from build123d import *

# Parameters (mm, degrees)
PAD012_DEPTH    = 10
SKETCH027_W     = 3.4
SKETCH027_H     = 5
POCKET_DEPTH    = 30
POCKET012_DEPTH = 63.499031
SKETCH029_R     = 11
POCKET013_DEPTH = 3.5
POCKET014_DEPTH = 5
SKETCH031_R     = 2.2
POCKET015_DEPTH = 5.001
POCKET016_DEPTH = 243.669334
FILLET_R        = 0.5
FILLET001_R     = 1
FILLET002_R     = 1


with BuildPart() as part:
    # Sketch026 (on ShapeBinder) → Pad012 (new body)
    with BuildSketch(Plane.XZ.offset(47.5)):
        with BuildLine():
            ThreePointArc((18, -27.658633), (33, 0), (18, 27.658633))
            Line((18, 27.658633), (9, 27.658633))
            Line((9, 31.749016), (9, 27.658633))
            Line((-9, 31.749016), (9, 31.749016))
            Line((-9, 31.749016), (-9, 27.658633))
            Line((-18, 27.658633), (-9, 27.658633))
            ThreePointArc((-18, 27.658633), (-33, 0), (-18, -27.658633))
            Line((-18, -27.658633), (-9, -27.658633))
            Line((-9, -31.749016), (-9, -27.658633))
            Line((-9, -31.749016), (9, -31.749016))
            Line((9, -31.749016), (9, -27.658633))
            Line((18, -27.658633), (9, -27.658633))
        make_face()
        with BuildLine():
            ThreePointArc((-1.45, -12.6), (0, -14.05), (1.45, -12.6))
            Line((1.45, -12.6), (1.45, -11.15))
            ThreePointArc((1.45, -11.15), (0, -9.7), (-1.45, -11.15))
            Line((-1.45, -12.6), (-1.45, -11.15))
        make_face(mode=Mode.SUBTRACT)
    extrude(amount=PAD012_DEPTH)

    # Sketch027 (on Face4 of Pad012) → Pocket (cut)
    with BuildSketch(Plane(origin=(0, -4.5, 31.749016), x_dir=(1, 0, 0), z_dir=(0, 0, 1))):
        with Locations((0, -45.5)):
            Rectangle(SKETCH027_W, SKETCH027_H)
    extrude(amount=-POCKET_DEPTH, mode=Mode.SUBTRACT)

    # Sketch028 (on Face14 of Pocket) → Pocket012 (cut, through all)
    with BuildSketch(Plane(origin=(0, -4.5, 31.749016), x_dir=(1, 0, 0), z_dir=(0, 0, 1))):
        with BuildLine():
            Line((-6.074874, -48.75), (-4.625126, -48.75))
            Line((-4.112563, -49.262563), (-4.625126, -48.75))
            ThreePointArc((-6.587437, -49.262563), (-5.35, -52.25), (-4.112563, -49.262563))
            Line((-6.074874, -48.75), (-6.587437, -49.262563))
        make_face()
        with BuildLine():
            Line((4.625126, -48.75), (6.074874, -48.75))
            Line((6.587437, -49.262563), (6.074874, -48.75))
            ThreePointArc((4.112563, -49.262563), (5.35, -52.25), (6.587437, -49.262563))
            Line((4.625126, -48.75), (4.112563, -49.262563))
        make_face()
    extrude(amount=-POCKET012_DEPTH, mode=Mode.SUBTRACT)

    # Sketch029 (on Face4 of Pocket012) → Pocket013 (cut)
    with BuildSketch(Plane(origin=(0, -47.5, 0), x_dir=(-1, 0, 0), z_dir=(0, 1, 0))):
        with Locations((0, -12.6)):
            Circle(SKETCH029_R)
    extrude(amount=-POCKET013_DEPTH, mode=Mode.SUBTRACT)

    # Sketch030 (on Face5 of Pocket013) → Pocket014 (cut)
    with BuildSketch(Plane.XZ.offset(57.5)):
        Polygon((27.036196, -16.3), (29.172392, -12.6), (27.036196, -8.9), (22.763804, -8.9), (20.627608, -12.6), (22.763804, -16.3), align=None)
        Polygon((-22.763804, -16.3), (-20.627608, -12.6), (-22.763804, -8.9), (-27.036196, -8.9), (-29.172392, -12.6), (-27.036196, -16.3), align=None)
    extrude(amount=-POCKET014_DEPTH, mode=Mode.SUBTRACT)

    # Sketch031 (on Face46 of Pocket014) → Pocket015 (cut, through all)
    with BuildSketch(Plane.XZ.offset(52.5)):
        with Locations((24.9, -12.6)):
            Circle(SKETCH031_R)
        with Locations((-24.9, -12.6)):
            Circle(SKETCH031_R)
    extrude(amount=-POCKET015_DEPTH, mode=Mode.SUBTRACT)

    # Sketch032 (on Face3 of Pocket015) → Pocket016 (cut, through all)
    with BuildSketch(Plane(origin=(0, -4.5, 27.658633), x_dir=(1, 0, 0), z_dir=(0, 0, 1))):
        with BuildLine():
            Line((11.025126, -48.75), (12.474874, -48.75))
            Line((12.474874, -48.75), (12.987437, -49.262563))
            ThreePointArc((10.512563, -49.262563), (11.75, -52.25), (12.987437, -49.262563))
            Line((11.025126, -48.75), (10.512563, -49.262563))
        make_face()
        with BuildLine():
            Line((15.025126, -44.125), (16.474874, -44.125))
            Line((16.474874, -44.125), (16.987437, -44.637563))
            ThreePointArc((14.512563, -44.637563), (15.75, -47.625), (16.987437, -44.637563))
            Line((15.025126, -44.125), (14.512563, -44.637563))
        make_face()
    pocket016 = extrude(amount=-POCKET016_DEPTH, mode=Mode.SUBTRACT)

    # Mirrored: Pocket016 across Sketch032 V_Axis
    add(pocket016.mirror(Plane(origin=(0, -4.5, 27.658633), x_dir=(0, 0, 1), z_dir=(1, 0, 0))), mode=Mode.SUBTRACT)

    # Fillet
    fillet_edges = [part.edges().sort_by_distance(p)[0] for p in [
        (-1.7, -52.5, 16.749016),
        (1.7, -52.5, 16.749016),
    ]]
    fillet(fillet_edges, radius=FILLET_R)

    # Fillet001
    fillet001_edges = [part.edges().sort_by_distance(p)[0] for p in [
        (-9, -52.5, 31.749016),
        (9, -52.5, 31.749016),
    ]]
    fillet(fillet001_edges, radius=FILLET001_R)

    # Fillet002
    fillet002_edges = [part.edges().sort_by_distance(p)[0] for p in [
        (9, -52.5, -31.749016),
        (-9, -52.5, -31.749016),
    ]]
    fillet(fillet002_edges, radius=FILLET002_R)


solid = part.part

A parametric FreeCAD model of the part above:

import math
import FreeCAD as App
import Part
import Sketcher
Q = App.Units.Quantity


def edges_at(feature, points):
    """Names of the edges that pass closest to the given points."""
    edges = feature.Shape.Edges
    near = lambda p: min(range(len(edges)), key=lambda i: edges[i].distToShape(Part.Vertex(*p))[0])
    return sorted({f"Edge{near(p) + 1}" for p in points})


def add_polygon(sketch, points):
    """Adds a closed chain of lines whose ends are joined by coincident constraints."""
    first, n = sketch.GeometryCount, len(points)
    for a, b in zip(points, points[1:] + points[:1]):
        sketch.addGeometry(Part.LineSegment(App.Vector(*a, 0), App.Vector(*b, 0)), False)
    for i in range(n):
        sketch.addConstraint(Sketcher.Constraint("Coincident", first + i, 2, first + (i + 1) % n, 1))

doc = App.newDocument("Part")
params = doc.addObject("Spreadsheet::Sheet", "Params")
for row, (alias, value) in enumerate([
    ("sketch1_radius", "32.999999 mm"),
    ("sketch1_width", "9 mm"),
    ("sketch1_width2", "18 mm"),
    ("sketch1_radius2", "1.45 mm"),
    ("sketch1_height", "1.45 mm"),
    ("pad1_length", "10 mm"),
    ("sketch2_height", "5 mm"),
    ("sketch2_width", "3.4 mm"),
    ("pocket1_length", "30 mm"),
    ("sketch3_radius", "1.75 mm"),
    ("sketch4_diameter", "22 mm"),
    ("pocket3_length", "3.5 mm"),
    ("pocket4_length", "5 mm"),
    ("sketch6_diameter", "4.4 mm"),
    ("sketch7_radius", "1.75 mm"),
    ("fillet_radius", "0.5 mm"),
    ("fillet2_radius", "1 mm"),
    ("fillet3_radius", "1 mm"),
], start=1):
    params.set(f"A{row}", alias)
    params.set(f"B{row}", "=" + value)
    params.setAlias(f"B{row}", alias)

body = doc.addObject("PartDesign::Body", "Body")

# Sketch on XZ plane
sketch1 = body.newObject("Sketcher::SketchObject", "Sketch")
sketch1.AttachmentSupport = (doc.getObject("XZ_Plane"), [""])
sketch1.MapMode = "FlatFace"
sketch1.AttachmentOffset = App.Placement(App.Vector(0, 0, 47.5), App.Rotation())
sketch1.addGeometry([
    Part.ArcOfCircle(Part.Circle(App.Vector(0, 0, 0), App.Vector(0, 0, 1), 33), math.radians(-57), math.radians(57)),  # 0
    Part.LineSegment(App.Vector(18, 27.7, 0), App.Vector(9, 27.7, 0)),  # 1
    Part.LineSegment(App.Vector(9, 27.7, 0), App.Vector(9, 31.7, 0)),  # 2
    Part.LineSegment(App.Vector(9, 31.7, 0), App.Vector(-9, 31.7, 0)),  # 3
    Part.LineSegment(App.Vector(-9, 31.7, 0), App.Vector(-9, 27.7, 0)),  # 4
    Part.LineSegment(App.Vector(-9, 27.7, 0), App.Vector(-18, 27.7, 0)),  # 5
    Part.ArcOfCircle(Part.Circle(App.Vector(0, 0, 0), App.Vector(0, 0, 1), 33), math.radians(123), math.radians(237)),  # 6
    Part.LineSegment(App.Vector(-18, -27.7, 0), App.Vector(-9, -27.7, 0)),  # 7
    Part.LineSegment(App.Vector(-9, -27.7, 0), App.Vector(-9, -31.7, 0)),  # 8
    Part.LineSegment(App.Vector(-9, -31.7, 0), App.Vector(9, -31.7, 0)),  # 9
    Part.LineSegment(App.Vector(9, -31.7, 0), App.Vector(9, -27.7, 0)),  # 10
    Part.LineSegment(App.Vector(9, -27.7, 0), App.Vector(18, -27.7, 0)),  # 11
    Part.ArcOfCircle(Part.Circle(App.Vector(0, -12.6, 0), App.Vector(0, 0, 1), 1.4), math.radians(180), math.radians(360)),  # 12
    Part.LineSegment(App.Vector(-1.4, -12.6, 0), App.Vector(-1.4, -11.2, 0)),  # 13
    Part.ArcOfCircle(Part.Circle(App.Vector(0, -11.2, 0), App.Vector(0, 0, 1), 1.4), math.radians(0), math.radians(180)),  # 14
    Part.LineSegment(App.Vector(1.4, -11.2, 0), App.Vector(1.4, -12.6, 0)),  # 15
], False)
sketch1.addConstraint([
    Sketcher.Constraint("Coincident", 0, 2, 1, 1),
    Sketcher.Constraint("Coincident", 1, 2, 2, 1),
    Sketcher.Constraint("Coincident", 2, 2, 3, 1),
    Sketcher.Constraint("Coincident", 3, 2, 4, 1),
    Sketcher.Constraint("Coincident", 4, 2, 5, 1),
    Sketcher.Constraint("Coincident", 5, 2, 6, 1),
    Sketcher.Constraint("Coincident", 6, 2, 7, 1),
    Sketcher.Constraint("Coincident", 7, 2, 8, 1),
    Sketcher.Constraint("Coincident", 8, 2, 9, 1),
    Sketcher.Constraint("Coincident", 9, 2, 10, 1),
    Sketcher.Constraint("Coincident", 10, 2, 11, 1),
    Sketcher.Constraint("Coincident", 11, 2, 0, 1),
    Sketcher.Constraint("Tangent", 12, 1, 13, 1),
    Sketcher.Constraint("Tangent", 13, 2, 14, 2),
    Sketcher.Constraint("Tangent", 14, 1, 15, 1),
    Sketcher.Constraint("Tangent", 15, 2, 12, 2),
    Sketcher.Constraint("Horizontal", 1),
    Sketcher.Constraint("Vertical", 2),
    Sketcher.Constraint("Horizontal", 3),
    Sketcher.Constraint("Vertical", 4),
    Sketcher.Constraint("Horizontal", 5),
    Sketcher.Constraint("Horizontal", 7),
    Sketcher.Constraint("Vertical", 8),
    Sketcher.Constraint("Horizontal", 9),
    Sketcher.Constraint("Vertical", 10),
    Sketcher.Constraint("Horizontal", 11),
    Sketcher.Constraint("Vertical", 13),
    Sketcher.Constraint("Vertical", 15),
    Sketcher.Constraint("Coincident", 0, 3, -1, 1),
    Sketcher.Constraint("Coincident", 6, 3, -1, 1),
    Sketcher.Constraint("Equal", 0, 6),
    Sketcher.Constraint("Symmetric", 1, 2, 7, 2, -1, 1),
    Sketcher.Constraint("Symmetric", 3, 2, 9, 2, -1, 1),
    Sketcher.Constraint("Symmetric", 1, 2, 4, 2, -2),
    Sketcher.Constraint("PointOnObject", 12, 3, -2),
    Sketcher.Constraint("Horizontal", 7, 2, 10, 2),
    Sketcher.Constraint("Radius", 0, 32.999999),
    Sketcher.Constraint("DistanceX", 1, 2, 1, 1, 9.0),
    Sketcher.Constraint("DistanceX", 3, 2, 3, 1, 18.0),
    Sketcher.Constraint("Radius", 12, 1.45),
    Sketcher.Constraint("DistanceY", 13, 1, 13, 2, 1.45),
    Sketcher.Constraint("DistanceY", 12, 3, -1, 1, 12.6),
    Sketcher.Constraint("DistanceY", 2, 1, 2, 2, 4.090383),
])
sketch1.setExpression("Constraints[36]", "Params.sketch1_radius")
sketch1.setExpression("Constraints[37]", "Params.sketch1_width")
sketch1.setExpression("Constraints[38]", "Params.sketch1_width2")
sketch1.setExpression("Constraints[39]", "Params.sketch1_radius2")
sketch1.setExpression("Constraints[40]", "Params.sketch1_height")
pad1 = body.newObject("PartDesign::Pad", "Pad")
pad1.Profile = sketch1
pad1.setExpression("Length", "Params.pad1_length")

# Sketch on XY plane
sketch2 = body.newObject("Sketcher::SketchObject", "Sketch001")
sketch2.AttachmentSupport = (doc.getObject("XY_Plane"), [""])
sketch2.MapMode = "FlatFace"
sketch2.AttachmentOffset = App.Placement(App.Vector(0, 0, 31.749016), App.Rotation())
add_polygon(sketch2, [(-1.7, -47.5), (-1.7, -52.5), (1.7, -52.5), (1.7, -47.5)])  # lines 0-3
sketch2.addConstraint([
    Sketcher.Constraint("Vertical", 0),
    Sketcher.Constraint("Horizontal", 1),
    Sketcher.Constraint("Vertical", 2),
    Sketcher.Constraint("Horizontal", 3),
    Sketcher.Constraint("DistanceY", 0, 2, 0, 1, 5.0),
    Sketcher.Constraint("DistanceX", 1, 1, 1, 2, 3.4),
    Sketcher.Constraint("DistanceX", 0, 2, -1, 1, 1.7),
    Sketcher.Constraint("DistanceY", 0, 2, -1, 1, 52.5),
])
sketch2.setExpression("Constraints[8]", "Params.sketch2_height")
sketch2.setExpression("Constraints[9]", "Params.sketch2_width")
pocket1 = body.newObject("PartDesign::Pocket", "Pocket")
pocket1.Profile = sketch2
pocket1.setExpression("Length", "Params.pocket1_length")

# Sketch on XY plane
sketch3 = body.newObject("Sketcher::SketchObject", "Sketch002")
sketch3.AttachmentSupport = (doc.getObject("XY_Plane"), [""])
sketch3.MapMode = "FlatFace"
sketch3.AttachmentOffset = App.Placement(App.Vector(0, 0, 31.749016), App.Rotation())
sketch3.addGeometry([
    Part.LineSegment(App.Vector(-4.6, -53.2, 0), App.Vector(-6.1, -53.2, 0)),  # 0
    Part.LineSegment(App.Vector(-6.1, -53.2, 0), App.Vector(-6.6, -53.8, 0)),  # 1
    Part.ArcOfCircle(Part.Circle(App.Vector(-5.3, -55, 0), App.Vector(0, 0, 1), 1.8), math.radians(135), math.radians(405)),  # 2
    Part.LineSegment(App.Vector(-4.1, -53.8, 0), App.Vector(-4.6, -53.2, 0)),  # 3
    Part.LineSegment(App.Vector(6.1, -53.2, 0), App.Vector(4.6, -53.2, 0)),  # 4
    Part.LineSegment(App.Vector(4.6, -53.2, 0), App.Vector(4.1, -53.8, 0)),  # 5
    Part.ArcOfCircle(Part.Circle(App.Vector(5.3, -55, 0), App.Vector(0, 0, 1), 1.8), math.radians(135), math.radians(405)),  # 6
    Part.LineSegment(App.Vector(6.6, -53.8, 0), App.Vector(6.1, -53.2, 0)),  # 7
], False)
sketch3.addConstraint([
    Sketcher.Constraint("Coincident", 0, 2, 1, 1),
    Sketcher.Constraint("Tangent", 1, 2, 2, 1),
    Sketcher.Constraint("Tangent", 2, 2, 3, 1),
    Sketcher.Constraint("Coincident", 3, 2, 0, 1),
    Sketcher.Constraint("Coincident", 4, 2, 5, 1),
    Sketcher.Constraint("Tangent", 5, 2, 6, 1),
    Sketcher.Constraint("Tangent", 6, 2, 7, 1),
    Sketcher.Constraint("Coincident", 7, 2, 4, 1),
    Sketcher.Constraint("Horizontal", 0),
    Sketcher.Constraint("Horizontal", 4),
    Sketcher.Constraint("Equal", 2, 6),
    Sketcher.Constraint("Symmetric", 2, 3, 6, 3, -2),
    Sketcher.Constraint("Symmetric", 3, 2, 4, 2, -2),
    Sketcher.Constraint("Perpendicular", 1, 3),
    Sketcher.Constraint("Perpendicular", 3, 5),
    Sketcher.Constraint("Perpendicular", 5, 7),
    Sketcher.Constraint("Radius", 2, 1.75),
    Sketcher.Constraint("DistanceY", 2, 3, -1, 1, 55.0),
    Sketcher.Constraint("DistanceX", 2, 3, 6, 3, 10.7),
    Sketcher.Constraint("DistanceY", 0, 2, -1, 1, 53.25),
])
sketch3.setExpression("Constraints[16]", "Params.sketch3_radius")
pocket2 = body.newObject("PartDesign::Pocket", "Pocket001")
pocket2.Profile = sketch3
pocket2.Type = "ThroughAll"

# Sketch on XZ plane
sketch4 = body.newObject("Sketcher::SketchObject", "Sketch003")
sketch4.AttachmentSupport = (doc.getObject("XZ_Plane"), [""])
sketch4.MapMode = "FlatFace"
sketch4.AttachmentOffset = App.Placement(App.Vector(0, 0, 47.5), App.Rotation())
sketch4.addGeometry(Part.Circle(App.Vector(0, -13, 0), App.Vector(0, 0, 1), 11), False)
sketch4.addConstraint([
    Sketcher.Constraint("PointOnObject", 0, 3, -2),
    Sketcher.Constraint("Diameter", 0, 22.0),
    Sketcher.Constraint("DistanceY", 0, 3, -1, 1, 12.6),
])
sketch4.setExpression("Constraints[1]", "Params.sketch4_diameter")
pocket3 = body.newObject("PartDesign::Pocket", "Pocket002")
pocket3.Profile = sketch4
pocket3.setExpression("Length", "Params.pocket3_length")
pocket3.Reversed = True

# Sketch on XZ plane
sketch5 = body.newObject("Sketcher::SketchObject", "Sketch004")
sketch5.AttachmentSupport = (doc.getObject("XZ_Plane"), [""])
sketch5.MapMode = "FlatFace"
sketch5.AttachmentOffset = App.Placement(App.Vector(0, 0, 57.5), App.Rotation())
add_polygon(sketch5, [(27, -16.3), (29.2, -12.6), (27, -8.9), (22.8, -8.9), (20.6, -12.6), (22.8, -16.3)])  # lines 0-5
add_polygon(sketch5, [(-22.8, -16.3), (-20.6, -12.6), (-22.8, -8.9), (-27, -8.9), (-29.2, -12.6), (-27, -16.3)])  # lines 6-11
sketch5.addConstraint([
    Sketcher.Constraint("Horizontal", 2),
    Sketcher.Constraint("Horizontal", 5),
    Sketcher.Constraint("Horizontal", 8),
    Sketcher.Constraint("Horizontal", 11),
    Sketcher.Constraint("Symmetric", 3, 2, 6, 2, -2),
    Sketcher.Constraint("Symmetric", 2, 2, 7, 2, -2),
    Sketcher.Constraint("Symmetric", 0, 2, 9, 2, -2),
    Sketcher.Constraint("Symmetric", 5, 2, 10, 2, -2),
    Sketcher.Constraint("Parallel", 0, 3),
    Sketcher.Constraint("Parallel", 1, 4),
    Sketcher.Constraint("Parallel", 3, 6),
    Sketcher.Constraint("Parallel", 4, 7),
    Sketcher.Constraint("Parallel", 6, 9),
    Sketcher.Constraint("Horizontal", 0, 2, 3, 2),
    Sketcher.Constraint("Vertical", 2, 2, 4, 2),
    Sketcher.Constraint("Angle", 0, Q("60 deg")),
    Sketcher.Constraint("DistanceY", 0, 2, -1, 1, 12.6),
    Sketcher.Constraint("DistanceY", 1, 2, -1, 1, 8.9),
    Sketcher.Constraint("DistanceX", 7, 2, 1, 2, 49.8),
    Sketcher.Constraint("DistanceX", 2, 2, 2, 1, 4.272392),
])
pocket4 = body.newObject("PartDesign::Pocket", "Pocket003")
pocket4.Profile = sketch5
pocket4.setExpression("Length", "Params.pocket4_length")

# Sketch on XZ plane
sketch6 = body.newObject("Sketcher::SketchObject", "Sketch005")
sketch6.AttachmentSupport = (doc.getObject("XZ_Plane"), [""])
sketch6.MapMode = "FlatFace"
sketch6.AttachmentOffset = App.Placement(App.Vector(0, 0, 52.5), App.Rotation())
sketch6.addGeometry([
    Part.Circle(App.Vector(24.9, -12.6, 0), App.Vector(0, 0, 1), 2.2),
    Part.Circle(App.Vector(-24.9, -12.6, 0), App.Vector(0, 0, 1), 2.2),
], False)
sketch6.addConstraint([
    Sketcher.Constraint("Equal", 0, 1),
    Sketcher.Constraint("Symmetric", 0, 3, 1, 3, -2),
    Sketcher.Constraint("Diameter", 0, 4.4),
    Sketcher.Constraint("DistanceX", -1, 1, 0, 3, 24.9),
    Sketcher.Constraint("DistanceY", 0, 3, -1, 1, 12.6),
])
sketch6.setExpression("Constraints[2]", "Params.sketch6_diameter")
pocket5 = body.newObject("PartDesign::Pocket", "Pocket004")
pocket5.Profile = sketch6
pocket5.Type = "ThroughAll"

# Sketch on XY plane
sketch7 = body.newObject("Sketcher::SketchObject", "Sketch006")
sketch7.AttachmentSupport = (doc.getObject("XY_Plane"), [""])
sketch7.MapMode = "FlatFace"
sketch7.AttachmentOffset = App.Placement(App.Vector(0, 0, 27.658633), App.Rotation())
sketch7.addGeometry([
    Part.LineSegment(App.Vector(12.5, -53.2, 0), App.Vector(11, -53.2, 0)),  # 0
    Part.LineSegment(App.Vector(11, -53.2, 0), App.Vector(10.5, -53.8, 0)),  # 1
    Part.ArcOfCircle(Part.Circle(App.Vector(11.8, -55, 0), App.Vector(0, 0, 1), 1.8), math.radians(135), math.radians(405)),  # 2
    Part.LineSegment(App.Vector(13, -53.8, 0), App.Vector(12.5, -53.2, 0)),  # 3
    Part.LineSegment(App.Vector(16.5, -48.6, 0), App.Vector(15, -48.6, 0)),  # 4
    Part.LineSegment(App.Vector(15, -48.6, 0), App.Vector(14.5, -49.1, 0)),  # 5
    Part.ArcOfCircle(Part.Circle(App.Vector(15.8, -50.4, 0), App.Vector(0, 0, 1), 1.8), math.radians(135), math.radians(405)),  # 6
    Part.LineSegment(App.Vector(17, -49.1, 0), App.Vector(16.5, -48.6, 0)),  # 7
], False)
sketch7.addConstraint([
    Sketcher.Constraint("Coincident", 0, 2, 1, 1),
    Sketcher.Constraint("Tangent", 1, 2, 2, 1),
    Sketcher.Constraint("Tangent", 2, 2, 3, 1),
    Sketcher.Constraint("Coincident", 3, 2, 0, 1),
    Sketcher.Constraint("Coincident", 4, 2, 5, 1),
    Sketcher.Constraint("Tangent", 5, 2, 6, 1),
    Sketcher.Constraint("Tangent", 6, 2, 7, 1),
    Sketcher.Constraint("Coincident", 7, 2, 4, 1),
    Sketcher.Constraint("Horizontal", 0),
    Sketcher.Constraint("Horizontal", 4),
    Sketcher.Constraint("Equal", 2, 6),
    Sketcher.Constraint("Perpendicular", 1, 3),
    Sketcher.Constraint("Perpendicular", 3, 5),
    Sketcher.Constraint("Perpendicular", 5, 7),
    Sketcher.Constraint("Horizontal", 1, 2, 2, 2),
    Sketcher.Constraint("Equal", 0, 4),
    Sketcher.Constraint("Radius", 2, 1.75),
    Sketcher.Constraint("DistanceY", 2, 3, -1, 1, 55.0),
    Sketcher.Constraint("DistanceX", 2, 3, 6, 3, 4.0),
    Sketcher.Constraint("DistanceX", -1, 1, 2, 3, 11.75),
    Sketcher.Constraint("DistanceY", 0, 2, -1, 1, 53.25),
    Sketcher.Constraint("DistanceY", 6, 3, -1, 1, 50.375),
])
sketch7.setExpression("Constraints[16]", "Params.sketch7_radius")
pocket6 = body.newObject("PartDesign::Pocket", "Pocket005")
pocket6.Profile = sketch7
pocket6.Type = "ThroughAll"
doc.recompute()

mirrored = body.newObject("PartDesign::Mirrored", "Mirrored")
mirrored.Originals = [pocket6]
mirrored.MirrorPlane = (doc.getObject("YZ_Plane"), [""])
body.Tip = mirrored
doc.recompute()

fillet = body.newObject("PartDesign::Fillet", "Fillet")
fillet.Base = (mirrored, edges_at(mirrored, [(-1.7, -52.5, 16.749), (1.7, -52.5, 16.749)]))
fillet.setExpression("Radius", "Params.fillet_radius")
doc.recompute()

fillet2 = body.newObject("PartDesign::Fillet", "Fillet001")
fillet2.Base = (fillet, edges_at(fillet, [(-9, -52.5, 31.749), (9, -52.5, 31.749)]))
fillet2.setExpression("Radius", "Params.fillet2_radius")
doc.recompute()

fillet3 = body.newObject("PartDesign::Fillet", "Fillet002")
fillet3.Base = (fillet2, edges_at(fillet2, [(9, -52.5, -31.749), (-9, -52.5, -31.749)]))
fillet3.setExpression("Radius", "Params.fillet3_radius")

doc.recompute()
